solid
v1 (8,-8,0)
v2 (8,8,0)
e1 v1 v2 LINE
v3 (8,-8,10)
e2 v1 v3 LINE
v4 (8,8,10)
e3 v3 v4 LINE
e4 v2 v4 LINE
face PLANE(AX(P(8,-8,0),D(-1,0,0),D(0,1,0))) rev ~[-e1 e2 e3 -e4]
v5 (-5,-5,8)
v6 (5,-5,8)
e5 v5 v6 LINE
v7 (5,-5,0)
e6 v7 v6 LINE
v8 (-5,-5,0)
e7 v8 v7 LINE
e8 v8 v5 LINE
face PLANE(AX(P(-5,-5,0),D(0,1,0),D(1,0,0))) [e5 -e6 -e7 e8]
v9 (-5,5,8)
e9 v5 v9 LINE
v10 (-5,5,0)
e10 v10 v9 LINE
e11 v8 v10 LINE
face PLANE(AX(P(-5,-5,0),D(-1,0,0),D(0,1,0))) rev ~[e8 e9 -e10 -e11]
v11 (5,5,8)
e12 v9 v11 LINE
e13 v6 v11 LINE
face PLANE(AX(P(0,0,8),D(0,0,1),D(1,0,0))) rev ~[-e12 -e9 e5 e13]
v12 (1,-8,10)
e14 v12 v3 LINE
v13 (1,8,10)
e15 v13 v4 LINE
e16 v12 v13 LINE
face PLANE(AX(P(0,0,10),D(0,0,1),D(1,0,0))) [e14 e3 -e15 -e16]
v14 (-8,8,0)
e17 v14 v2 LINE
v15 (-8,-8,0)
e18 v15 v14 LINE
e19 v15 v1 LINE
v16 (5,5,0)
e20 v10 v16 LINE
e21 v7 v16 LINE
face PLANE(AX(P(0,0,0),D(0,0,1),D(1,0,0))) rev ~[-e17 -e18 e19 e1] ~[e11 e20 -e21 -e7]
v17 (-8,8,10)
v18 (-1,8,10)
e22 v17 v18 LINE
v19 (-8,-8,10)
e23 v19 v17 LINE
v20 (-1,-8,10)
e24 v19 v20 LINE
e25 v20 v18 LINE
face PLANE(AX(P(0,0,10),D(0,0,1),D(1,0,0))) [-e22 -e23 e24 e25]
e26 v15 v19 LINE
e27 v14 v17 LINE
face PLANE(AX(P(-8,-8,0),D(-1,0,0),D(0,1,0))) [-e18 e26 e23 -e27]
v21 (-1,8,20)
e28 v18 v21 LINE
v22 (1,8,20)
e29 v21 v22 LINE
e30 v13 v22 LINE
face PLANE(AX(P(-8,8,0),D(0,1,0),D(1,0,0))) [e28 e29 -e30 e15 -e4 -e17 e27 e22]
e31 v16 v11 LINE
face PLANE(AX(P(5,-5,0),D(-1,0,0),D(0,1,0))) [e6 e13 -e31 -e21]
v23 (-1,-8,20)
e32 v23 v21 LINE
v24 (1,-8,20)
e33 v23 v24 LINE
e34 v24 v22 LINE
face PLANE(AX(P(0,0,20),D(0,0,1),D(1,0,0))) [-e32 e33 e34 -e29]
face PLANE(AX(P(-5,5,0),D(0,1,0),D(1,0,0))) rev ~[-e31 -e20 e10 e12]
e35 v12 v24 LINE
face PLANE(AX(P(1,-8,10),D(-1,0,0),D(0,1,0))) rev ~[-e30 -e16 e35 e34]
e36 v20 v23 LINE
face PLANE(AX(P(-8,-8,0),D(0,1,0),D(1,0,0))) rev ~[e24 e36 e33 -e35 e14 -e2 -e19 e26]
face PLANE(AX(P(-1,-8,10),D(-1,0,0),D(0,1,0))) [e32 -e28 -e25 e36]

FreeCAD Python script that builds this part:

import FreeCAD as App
import Part
import Sketcher

V = App.Vector


def add_polygon(sketch, points):
    """Adds a closed chain of lines whose ends are joined by coincident constraints."""
    first, n = sketch.GeometryCount, len(points)
    for a, b in zip(points, points[1:] + points[:1]):
        sketch.addGeometry(Part.LineSegment(App.Vector(*a, 0), App.Vector(*b, 0)), False)
    for i in range(n):
        sketch.addConstraint(Sketcher.Constraint("Coincident", first + i, 2, first + (i + 1) % n, 1))

doc = App.newDocument("Part")
body = doc.addObject("PartDesign::Body", "Body")

# Sketch on XY plane
sketch1 = body.newObject("Sketcher::SketchObject", "Sketch")
sketch1.AttachmentSupport = (doc.getObject("XY_Plane"), [""])
sketch1.MapMode = "FlatFace"
add_polygon(sketch1, [(-5, 5), (-5, -5), (5, -5), (5, 5)])  # lines 0-3
sketch1.addConstraint(Sketcher.Constraint("Vertical", 0))
sketch1.addConstraint(Sketcher.Constraint("Horizontal", 1))
sketch1.addConstraint(Sketcher.Constraint("Vertical", 2))
sketch1.addConstraint(Sketcher.Constraint("Horizontal", 3))
sketch1.addConstraint(Sketcher.Constraint("Symmetric", 0, 2, 2, 2, -1, 1))
sketch1.addConstraint(Sketcher.Constraint("Equal", 3, 0))
sketch1.addConstraint(Sketcher.Constraint("DistanceX", 1, 1, 1, 2, 10.0))
pad1 = body.newObject("PartDesign::Pad", "Pad")
pad1.Profile = sketch1
pad1.Length = 8
body2 = doc.addObject("PartDesign::Body", "Body001")

# Sketch on XY plane
sketch2 = body2.newObject("Sketcher::SketchObject", "Sketch001")
sketch2.AttachmentSupport = (doc.getObject("XY_Plane001"), [""])
sketch2.MapMode = "FlatFace"
sketch2.AttachmentOffset = App.Placement(V(0, 0, 10), App.Rotation())
add_polygon(sketch2, [(-1, 8), (-1, -8), (1, -8), (1, 8)])  # lines 0-3
sketch2.addConstraint(Sketcher.Constraint("Vertical", 0))
sketch2.addConstraint(Sketcher.Constraint("Horizontal", 1))
sketch2.addConstraint(Sketcher.Constraint("Vertical", 2))
sketch2.addConstraint(Sketcher.Constraint("Horizontal", 3))
sketch2.addConstraint(Sketcher.Constraint("Symmetric", 0, 2, 2, 2, -1, 1))
sketch2.addConstraint(Sketcher.Constraint("DistanceX", 1, 1, 1, 2, 2.0))
sketch2.addConstraint(Sketcher.Constraint("DistanceY", 0, 2, 0, 1, 16.0))
pad2 = body2.newObject("PartDesign::Pad", "Pad001")
pad2.Profile = sketch2
pad2.Length = 10
body3 = doc.addObject("PartDesign::Body", "Body002")

# Sketch on XY plane
sketch3 = body3.newObject("Sketcher::SketchObject", "Sketch002")
sketch3.AttachmentSupport = (doc.getObject("XY_Plane002"), [""])
sketch3.MapMode = "FlatFace"
add_polygon(sketch3, [(-8, 8), (-8, -8), (8, -8), (8, 8)])  # lines 0-3
sketch3.addConstraint(Sketcher.Constraint("Vertical", 0))
sketch3.addConstraint(Sketcher.Constraint("Horizontal", 1))
sketch3.addConstraint(Sketcher.Constraint("Vertical", 2))
sketch3.addConstraint(Sketcher.Constraint("Horizontal", 3))
sketch3.addConstraint(Sketcher.Constraint("Symmetric", 0, 2, 2, 2, -1, 1))
sketch3.addConstraint(Sketcher.Constraint("Equal", 3, 0))
sketch3.addConstraint(Sketcher.Constraint("DistanceX", 1, 1, 1, 2, 16.0))
pad3 = body3.newObject("PartDesign::Pad", "Pad002")
pad3.Profile = sketch3
pad3.Length = 10
doc.recompute()

boolean = body3.newObject("PartDesign::Boolean", "Boolean")
boolean.Type = "Fuse"
boolean.addObjects([body2])
doc.recompute()

boolean2 = body3.newObject("PartDesign::Boolean", "Boolean001")
boolean2.Type = "Cut"
boolean2.addObjects([body])

doc.recompute()
